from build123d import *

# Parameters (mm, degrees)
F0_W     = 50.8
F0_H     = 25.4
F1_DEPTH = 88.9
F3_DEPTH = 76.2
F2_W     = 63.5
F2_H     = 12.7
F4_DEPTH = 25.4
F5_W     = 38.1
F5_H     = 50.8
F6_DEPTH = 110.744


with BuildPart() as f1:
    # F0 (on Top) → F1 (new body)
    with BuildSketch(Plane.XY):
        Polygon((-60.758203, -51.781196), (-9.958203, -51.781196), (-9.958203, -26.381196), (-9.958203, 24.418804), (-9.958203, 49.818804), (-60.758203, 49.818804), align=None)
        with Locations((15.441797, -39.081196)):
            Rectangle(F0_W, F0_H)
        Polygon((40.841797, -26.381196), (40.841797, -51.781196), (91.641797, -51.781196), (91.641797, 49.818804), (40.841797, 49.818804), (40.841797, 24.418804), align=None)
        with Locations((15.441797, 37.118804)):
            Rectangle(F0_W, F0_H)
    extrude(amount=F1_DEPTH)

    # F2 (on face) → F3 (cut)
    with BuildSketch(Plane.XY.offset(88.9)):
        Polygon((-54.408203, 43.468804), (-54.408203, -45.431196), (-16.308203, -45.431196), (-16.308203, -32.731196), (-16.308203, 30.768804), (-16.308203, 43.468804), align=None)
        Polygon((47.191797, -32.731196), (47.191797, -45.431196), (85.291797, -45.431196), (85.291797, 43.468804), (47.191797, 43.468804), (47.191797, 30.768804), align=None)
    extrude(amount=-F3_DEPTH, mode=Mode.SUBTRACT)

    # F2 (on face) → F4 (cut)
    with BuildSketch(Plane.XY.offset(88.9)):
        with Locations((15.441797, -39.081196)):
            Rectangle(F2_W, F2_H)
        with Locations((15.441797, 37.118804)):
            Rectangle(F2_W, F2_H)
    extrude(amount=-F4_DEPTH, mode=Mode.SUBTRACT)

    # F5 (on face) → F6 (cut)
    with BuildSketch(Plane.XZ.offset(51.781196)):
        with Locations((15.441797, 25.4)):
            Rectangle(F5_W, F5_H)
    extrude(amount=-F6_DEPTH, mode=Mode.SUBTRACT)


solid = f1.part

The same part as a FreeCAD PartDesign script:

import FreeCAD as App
import Part
import Sketcher
Q = App.Units.Quantity


def add_polygon(sketch, points):
    """Adds a closed chain of lines whose ends are joined by coincident constraints."""
    first, n = sketch.GeometryCount, len(points)
    for a, b in zip(points, points[1:] + points[:1]):
        sketch.addGeometry(Part.LineSegment(App.Vector(*a, 0), App.Vector(*b, 0)), False)
    for i in range(n):
        sketch.addConstraint(Sketcher.Constraint("Coincident", first + i, 2, first + (i + 1) % n, 1))

doc = App.newDocument("Part")
body = doc.addObject("PartDesign::Body", "Body")

sketch1 = doc.addObject("Sketcher::SketchObject", "Sketch")
body.addObject(sketch1)
sketch1.AttachmentSupport = (doc.XY_Plane, [""])
sketch1.MapMode = "FlatFace"
add_polygon(sketch1, [(-61, -52), (92, -52), (92, 50), (-61, 50)])
add_polygon(sketch1, [(41, 24), (41, -26), (-10, -26), (-10, 24)])
sketch1.addConstraint(Sketcher.Constraint("Horizontal", 0))
sketch1.addConstraint(Sketcher.Constraint("Vertical", 1))
sketch1.addConstraint(Sketcher.Constraint("Horizontal", 2))
sketch1.addConstraint(Sketcher.Constraint("Vertical", 3))
sketch1.addConstraint(Sketcher.Constraint("Vertical", 4))
sketch1.addConstraint(Sketcher.Constraint("Horizontal", 5))
sketch1.addConstraint(Sketcher.Constraint("Vertical", 6))
sketch1.addConstraint(Sketcher.Constraint("Horizontal", 7))
sketch1.addConstraint(Sketcher.Constraint("Equal", 7, 4))
sketch1.addConstraint(Sketcher.Constraint("DistanceX", 0, 1, 0, 2, Q("6 in")))
sketch1.addConstraint(Sketcher.Constraint("DistanceX", 5, 2, 5, 1, Q("2 in")))
sketch1.addConstraint(Sketcher.Constraint("DistanceY", 1, 1, 1, 2, Q("4 in")))
sketch1.addConstraint(Sketcher.Constraint("DistanceX", 4, 2, 0, 2, Q("2 in")))
sketch1.addConstraint(Sketcher.Constraint("DistanceY", 0, 2, 4, 2, Q("1 in")))
sketch1.addConstraint(Sketcher.Constraint("DistanceX", -1, 1, 0, 2, Q("91.641797 mm")))
sketch1.addConstraint(Sketcher.Constraint("DistanceY", 0, 2, -1, 1, Q("51.781196 mm")))
pad1 = doc.addObject("PartDesign::Pad", "Pad")
body.addObject(pad1)
pad1.Profile = sketch1
pad1.Length = Q("3.5 in")

sketch2 = doc.addObject("Sketcher::SketchObject", "Sketch001")
body.addObject(sketch2)
sketch2.AttachmentSupport = (doc.XY_Plane, [""])
sketch2.MapMode = "FlatFace"
sketch2.AttachmentOffset = App.Placement(App.Vector(0, 0, 3.5 * 25.4), App.Rotation())
add_polygon(sketch2, [(-54, 43), (-54, -45), (-16, -45), (-16, 43)])
add_polygon(sketch2, [(47, -45), (85, -45), (85, 43), (47, 43)])
sketch2.addConstraint(Sketcher.Constraint("Vertical", 0))
sketch2.addConstraint(Sketcher.Constraint("Horizontal", 1))
sketch2.addConstraint(Sketcher.Constraint("Vertical", 2))
sketch2.addConstraint(Sketcher.Constraint("Horizontal", 3))
sketch2.addConstraint(Sketcher.Constraint("Horizontal", 4))
sketch2.addConstraint(Sketcher.Constraint("Vertical", 5))
sketch2.addConstraint(Sketcher.Constraint("Horizontal", 6))
sketch2.addConstraint(Sketcher.Constraint("Vertical", 7))
sketch2.addConstraint(Sketcher.Constraint("Horizontal", 1, 2, 4, 2))
sketch2.addConstraint(Sketcher.Constraint("Horizontal", 3, 2, 5, 2))
sketch2.addConstraint(Sketcher.Constraint("Equal", 3, 4))
sketch2.addConstraint(Sketcher.Constraint("DistanceX", 1, 1, 1, 2, Q("1.5 in")))
sketch2.addConstraint(Sketcher.Constraint("DistanceY", 0, 2, 0, 1, Q("3.5 in")))
sketch2.addConstraint(Sketcher.Constraint("DistanceX", 1, 2, 4, 2, Q("4 in")))
sketch2.addConstraint(Sketcher.Constraint("DistanceX", 0, 2, -1, 1, Q("54.408203 mm")))
sketch2.addConstraint(Sketcher.Constraint("DistanceY", 0, 2, -1, 1, Q("45.431196 mm")))
pocket1 = doc.addObject("PartDesign::Pocket", "Pocket")
body.addObject(pocket1)
pocket1.Profile = sketch2
pocket1.Length = Q("3 in")

sketch3 = doc.addObject("Sketcher::SketchObject", "Sketch002")
body.addObject(sketch3)
sketch3.AttachmentSupport = (doc.XY_Plane, [""])
sketch3.MapMode = "FlatFace"
sketch3.AttachmentOffset = App.Placement(App.Vector(0, 0, 3.5 * 25.4), App.Rotation())
add_polygon(sketch3, [(-16, -33), (-16, -45), (47, -45), (47, -33)])
add_polygon(sketch3, [(-16, 43), (-16, 31), (47, 31), (47, 43)])
sketch3.addConstraint(Sketcher.Constraint("Vertical", 0))
sketch3.addConstraint(Sketcher.Constraint("Horizontal", 1))
sketch3.addConstraint(Sketcher.Constraint("Vertical", 2))
sketch3.addConstraint(Sketcher.Constraint("Horizontal", 3))
sketch3.addConstraint(Sketcher.Constraint("Vertical", 4))
sketch3.addConstraint(Sketcher.Constraint("Horizontal", 5))
sketch3.addConstraint(Sketcher.Constraint("Vertical", 6))
sketch3.addConstraint(Sketcher.Constraint("Horizontal", 7))
sketch3.addConstraint(Sketcher.Constraint("Vertical", 3, 2, 4, 2))
sketch3.addConstraint(Sketcher.Constraint("Vertical", 2, 2, 5, 2))
sketch3.addConstraint(Sketcher.Constraint("Equal", 2, 4))
sketch3.addConstraint(Sketcher.Constraint("DistanceX", 1, 1, 1, 2, Q("2.5 in")))
sketch3.addConstraint(Sketcher.Constraint("DistanceY", 0, 2, 0, 1, Q("0.5 in")))
sketch3.addConstraint(Sketcher.Constraint("DistanceY", 0, 2, 4, 2, Q("3 in")))
sketch3.addConstraint(Sketcher.Constraint("DistanceX", 0, 2, -1, 1, Q("16.308203 mm")))
sketch3.addConstraint(Sketcher.Constraint("DistanceY", 0, 2, -1, 1, Q("45.431196 mm")))
pocket2 = doc.addObject("PartDesign::Pocket", "Pocket001")
body.addObject(pocket2)
pocket2.Profile = sketch3
pocket2.Length = Q("1 in")

sketch4 = doc.addObject("Sketcher::SketchObject", "Sketch003")
body.addObject(sketch4)
sketch4.AttachmentSupport = (doc.XZ_Plane, [""])
sketch4.MapMode = "FlatFace"
sketch4.AttachmentOffset = App.Placement(App.Vector(0, 0, 51.781196), App.Rotation())
add_polygon(sketch4, [(-4, 51), (-4, 0), (34, 0), (34, 51)])
sketch4.addConstraint(Sketcher.Constraint("Vertical", 0))
sketch4.addConstraint(Sketcher.Constraint("Horizontal", 1))
sketch4.addConstraint(Sketcher.Constraint("Vertical", 2))
sketch4.addConstraint(Sketcher.Constraint("Horizontal", 3))
sketch4.addConstraint(Sketcher.Constraint("PointOnObject", 0, 2, -1))
sketch4.addConstraint(Sketcher.Constraint("DistanceY", 0, 2, 0, 1, Q("2 in")))
sketch4.addConstraint(Sketcher.Constraint("DistanceX", 1, 1, 1, 2, Q("1.5 in")))
sketch4.addConstraint(Sketcher.Constraint("DistanceX", 0, 2, -1, 1, Q("3.608203 mm")))
pocket3 = doc.addObject("PartDesign::Pocket", "Pocket002")
body.addObject(pocket3)
pocket3.Profile = sketch4
pocket3.Length = Q("4.36 in")

doc.recompute()
